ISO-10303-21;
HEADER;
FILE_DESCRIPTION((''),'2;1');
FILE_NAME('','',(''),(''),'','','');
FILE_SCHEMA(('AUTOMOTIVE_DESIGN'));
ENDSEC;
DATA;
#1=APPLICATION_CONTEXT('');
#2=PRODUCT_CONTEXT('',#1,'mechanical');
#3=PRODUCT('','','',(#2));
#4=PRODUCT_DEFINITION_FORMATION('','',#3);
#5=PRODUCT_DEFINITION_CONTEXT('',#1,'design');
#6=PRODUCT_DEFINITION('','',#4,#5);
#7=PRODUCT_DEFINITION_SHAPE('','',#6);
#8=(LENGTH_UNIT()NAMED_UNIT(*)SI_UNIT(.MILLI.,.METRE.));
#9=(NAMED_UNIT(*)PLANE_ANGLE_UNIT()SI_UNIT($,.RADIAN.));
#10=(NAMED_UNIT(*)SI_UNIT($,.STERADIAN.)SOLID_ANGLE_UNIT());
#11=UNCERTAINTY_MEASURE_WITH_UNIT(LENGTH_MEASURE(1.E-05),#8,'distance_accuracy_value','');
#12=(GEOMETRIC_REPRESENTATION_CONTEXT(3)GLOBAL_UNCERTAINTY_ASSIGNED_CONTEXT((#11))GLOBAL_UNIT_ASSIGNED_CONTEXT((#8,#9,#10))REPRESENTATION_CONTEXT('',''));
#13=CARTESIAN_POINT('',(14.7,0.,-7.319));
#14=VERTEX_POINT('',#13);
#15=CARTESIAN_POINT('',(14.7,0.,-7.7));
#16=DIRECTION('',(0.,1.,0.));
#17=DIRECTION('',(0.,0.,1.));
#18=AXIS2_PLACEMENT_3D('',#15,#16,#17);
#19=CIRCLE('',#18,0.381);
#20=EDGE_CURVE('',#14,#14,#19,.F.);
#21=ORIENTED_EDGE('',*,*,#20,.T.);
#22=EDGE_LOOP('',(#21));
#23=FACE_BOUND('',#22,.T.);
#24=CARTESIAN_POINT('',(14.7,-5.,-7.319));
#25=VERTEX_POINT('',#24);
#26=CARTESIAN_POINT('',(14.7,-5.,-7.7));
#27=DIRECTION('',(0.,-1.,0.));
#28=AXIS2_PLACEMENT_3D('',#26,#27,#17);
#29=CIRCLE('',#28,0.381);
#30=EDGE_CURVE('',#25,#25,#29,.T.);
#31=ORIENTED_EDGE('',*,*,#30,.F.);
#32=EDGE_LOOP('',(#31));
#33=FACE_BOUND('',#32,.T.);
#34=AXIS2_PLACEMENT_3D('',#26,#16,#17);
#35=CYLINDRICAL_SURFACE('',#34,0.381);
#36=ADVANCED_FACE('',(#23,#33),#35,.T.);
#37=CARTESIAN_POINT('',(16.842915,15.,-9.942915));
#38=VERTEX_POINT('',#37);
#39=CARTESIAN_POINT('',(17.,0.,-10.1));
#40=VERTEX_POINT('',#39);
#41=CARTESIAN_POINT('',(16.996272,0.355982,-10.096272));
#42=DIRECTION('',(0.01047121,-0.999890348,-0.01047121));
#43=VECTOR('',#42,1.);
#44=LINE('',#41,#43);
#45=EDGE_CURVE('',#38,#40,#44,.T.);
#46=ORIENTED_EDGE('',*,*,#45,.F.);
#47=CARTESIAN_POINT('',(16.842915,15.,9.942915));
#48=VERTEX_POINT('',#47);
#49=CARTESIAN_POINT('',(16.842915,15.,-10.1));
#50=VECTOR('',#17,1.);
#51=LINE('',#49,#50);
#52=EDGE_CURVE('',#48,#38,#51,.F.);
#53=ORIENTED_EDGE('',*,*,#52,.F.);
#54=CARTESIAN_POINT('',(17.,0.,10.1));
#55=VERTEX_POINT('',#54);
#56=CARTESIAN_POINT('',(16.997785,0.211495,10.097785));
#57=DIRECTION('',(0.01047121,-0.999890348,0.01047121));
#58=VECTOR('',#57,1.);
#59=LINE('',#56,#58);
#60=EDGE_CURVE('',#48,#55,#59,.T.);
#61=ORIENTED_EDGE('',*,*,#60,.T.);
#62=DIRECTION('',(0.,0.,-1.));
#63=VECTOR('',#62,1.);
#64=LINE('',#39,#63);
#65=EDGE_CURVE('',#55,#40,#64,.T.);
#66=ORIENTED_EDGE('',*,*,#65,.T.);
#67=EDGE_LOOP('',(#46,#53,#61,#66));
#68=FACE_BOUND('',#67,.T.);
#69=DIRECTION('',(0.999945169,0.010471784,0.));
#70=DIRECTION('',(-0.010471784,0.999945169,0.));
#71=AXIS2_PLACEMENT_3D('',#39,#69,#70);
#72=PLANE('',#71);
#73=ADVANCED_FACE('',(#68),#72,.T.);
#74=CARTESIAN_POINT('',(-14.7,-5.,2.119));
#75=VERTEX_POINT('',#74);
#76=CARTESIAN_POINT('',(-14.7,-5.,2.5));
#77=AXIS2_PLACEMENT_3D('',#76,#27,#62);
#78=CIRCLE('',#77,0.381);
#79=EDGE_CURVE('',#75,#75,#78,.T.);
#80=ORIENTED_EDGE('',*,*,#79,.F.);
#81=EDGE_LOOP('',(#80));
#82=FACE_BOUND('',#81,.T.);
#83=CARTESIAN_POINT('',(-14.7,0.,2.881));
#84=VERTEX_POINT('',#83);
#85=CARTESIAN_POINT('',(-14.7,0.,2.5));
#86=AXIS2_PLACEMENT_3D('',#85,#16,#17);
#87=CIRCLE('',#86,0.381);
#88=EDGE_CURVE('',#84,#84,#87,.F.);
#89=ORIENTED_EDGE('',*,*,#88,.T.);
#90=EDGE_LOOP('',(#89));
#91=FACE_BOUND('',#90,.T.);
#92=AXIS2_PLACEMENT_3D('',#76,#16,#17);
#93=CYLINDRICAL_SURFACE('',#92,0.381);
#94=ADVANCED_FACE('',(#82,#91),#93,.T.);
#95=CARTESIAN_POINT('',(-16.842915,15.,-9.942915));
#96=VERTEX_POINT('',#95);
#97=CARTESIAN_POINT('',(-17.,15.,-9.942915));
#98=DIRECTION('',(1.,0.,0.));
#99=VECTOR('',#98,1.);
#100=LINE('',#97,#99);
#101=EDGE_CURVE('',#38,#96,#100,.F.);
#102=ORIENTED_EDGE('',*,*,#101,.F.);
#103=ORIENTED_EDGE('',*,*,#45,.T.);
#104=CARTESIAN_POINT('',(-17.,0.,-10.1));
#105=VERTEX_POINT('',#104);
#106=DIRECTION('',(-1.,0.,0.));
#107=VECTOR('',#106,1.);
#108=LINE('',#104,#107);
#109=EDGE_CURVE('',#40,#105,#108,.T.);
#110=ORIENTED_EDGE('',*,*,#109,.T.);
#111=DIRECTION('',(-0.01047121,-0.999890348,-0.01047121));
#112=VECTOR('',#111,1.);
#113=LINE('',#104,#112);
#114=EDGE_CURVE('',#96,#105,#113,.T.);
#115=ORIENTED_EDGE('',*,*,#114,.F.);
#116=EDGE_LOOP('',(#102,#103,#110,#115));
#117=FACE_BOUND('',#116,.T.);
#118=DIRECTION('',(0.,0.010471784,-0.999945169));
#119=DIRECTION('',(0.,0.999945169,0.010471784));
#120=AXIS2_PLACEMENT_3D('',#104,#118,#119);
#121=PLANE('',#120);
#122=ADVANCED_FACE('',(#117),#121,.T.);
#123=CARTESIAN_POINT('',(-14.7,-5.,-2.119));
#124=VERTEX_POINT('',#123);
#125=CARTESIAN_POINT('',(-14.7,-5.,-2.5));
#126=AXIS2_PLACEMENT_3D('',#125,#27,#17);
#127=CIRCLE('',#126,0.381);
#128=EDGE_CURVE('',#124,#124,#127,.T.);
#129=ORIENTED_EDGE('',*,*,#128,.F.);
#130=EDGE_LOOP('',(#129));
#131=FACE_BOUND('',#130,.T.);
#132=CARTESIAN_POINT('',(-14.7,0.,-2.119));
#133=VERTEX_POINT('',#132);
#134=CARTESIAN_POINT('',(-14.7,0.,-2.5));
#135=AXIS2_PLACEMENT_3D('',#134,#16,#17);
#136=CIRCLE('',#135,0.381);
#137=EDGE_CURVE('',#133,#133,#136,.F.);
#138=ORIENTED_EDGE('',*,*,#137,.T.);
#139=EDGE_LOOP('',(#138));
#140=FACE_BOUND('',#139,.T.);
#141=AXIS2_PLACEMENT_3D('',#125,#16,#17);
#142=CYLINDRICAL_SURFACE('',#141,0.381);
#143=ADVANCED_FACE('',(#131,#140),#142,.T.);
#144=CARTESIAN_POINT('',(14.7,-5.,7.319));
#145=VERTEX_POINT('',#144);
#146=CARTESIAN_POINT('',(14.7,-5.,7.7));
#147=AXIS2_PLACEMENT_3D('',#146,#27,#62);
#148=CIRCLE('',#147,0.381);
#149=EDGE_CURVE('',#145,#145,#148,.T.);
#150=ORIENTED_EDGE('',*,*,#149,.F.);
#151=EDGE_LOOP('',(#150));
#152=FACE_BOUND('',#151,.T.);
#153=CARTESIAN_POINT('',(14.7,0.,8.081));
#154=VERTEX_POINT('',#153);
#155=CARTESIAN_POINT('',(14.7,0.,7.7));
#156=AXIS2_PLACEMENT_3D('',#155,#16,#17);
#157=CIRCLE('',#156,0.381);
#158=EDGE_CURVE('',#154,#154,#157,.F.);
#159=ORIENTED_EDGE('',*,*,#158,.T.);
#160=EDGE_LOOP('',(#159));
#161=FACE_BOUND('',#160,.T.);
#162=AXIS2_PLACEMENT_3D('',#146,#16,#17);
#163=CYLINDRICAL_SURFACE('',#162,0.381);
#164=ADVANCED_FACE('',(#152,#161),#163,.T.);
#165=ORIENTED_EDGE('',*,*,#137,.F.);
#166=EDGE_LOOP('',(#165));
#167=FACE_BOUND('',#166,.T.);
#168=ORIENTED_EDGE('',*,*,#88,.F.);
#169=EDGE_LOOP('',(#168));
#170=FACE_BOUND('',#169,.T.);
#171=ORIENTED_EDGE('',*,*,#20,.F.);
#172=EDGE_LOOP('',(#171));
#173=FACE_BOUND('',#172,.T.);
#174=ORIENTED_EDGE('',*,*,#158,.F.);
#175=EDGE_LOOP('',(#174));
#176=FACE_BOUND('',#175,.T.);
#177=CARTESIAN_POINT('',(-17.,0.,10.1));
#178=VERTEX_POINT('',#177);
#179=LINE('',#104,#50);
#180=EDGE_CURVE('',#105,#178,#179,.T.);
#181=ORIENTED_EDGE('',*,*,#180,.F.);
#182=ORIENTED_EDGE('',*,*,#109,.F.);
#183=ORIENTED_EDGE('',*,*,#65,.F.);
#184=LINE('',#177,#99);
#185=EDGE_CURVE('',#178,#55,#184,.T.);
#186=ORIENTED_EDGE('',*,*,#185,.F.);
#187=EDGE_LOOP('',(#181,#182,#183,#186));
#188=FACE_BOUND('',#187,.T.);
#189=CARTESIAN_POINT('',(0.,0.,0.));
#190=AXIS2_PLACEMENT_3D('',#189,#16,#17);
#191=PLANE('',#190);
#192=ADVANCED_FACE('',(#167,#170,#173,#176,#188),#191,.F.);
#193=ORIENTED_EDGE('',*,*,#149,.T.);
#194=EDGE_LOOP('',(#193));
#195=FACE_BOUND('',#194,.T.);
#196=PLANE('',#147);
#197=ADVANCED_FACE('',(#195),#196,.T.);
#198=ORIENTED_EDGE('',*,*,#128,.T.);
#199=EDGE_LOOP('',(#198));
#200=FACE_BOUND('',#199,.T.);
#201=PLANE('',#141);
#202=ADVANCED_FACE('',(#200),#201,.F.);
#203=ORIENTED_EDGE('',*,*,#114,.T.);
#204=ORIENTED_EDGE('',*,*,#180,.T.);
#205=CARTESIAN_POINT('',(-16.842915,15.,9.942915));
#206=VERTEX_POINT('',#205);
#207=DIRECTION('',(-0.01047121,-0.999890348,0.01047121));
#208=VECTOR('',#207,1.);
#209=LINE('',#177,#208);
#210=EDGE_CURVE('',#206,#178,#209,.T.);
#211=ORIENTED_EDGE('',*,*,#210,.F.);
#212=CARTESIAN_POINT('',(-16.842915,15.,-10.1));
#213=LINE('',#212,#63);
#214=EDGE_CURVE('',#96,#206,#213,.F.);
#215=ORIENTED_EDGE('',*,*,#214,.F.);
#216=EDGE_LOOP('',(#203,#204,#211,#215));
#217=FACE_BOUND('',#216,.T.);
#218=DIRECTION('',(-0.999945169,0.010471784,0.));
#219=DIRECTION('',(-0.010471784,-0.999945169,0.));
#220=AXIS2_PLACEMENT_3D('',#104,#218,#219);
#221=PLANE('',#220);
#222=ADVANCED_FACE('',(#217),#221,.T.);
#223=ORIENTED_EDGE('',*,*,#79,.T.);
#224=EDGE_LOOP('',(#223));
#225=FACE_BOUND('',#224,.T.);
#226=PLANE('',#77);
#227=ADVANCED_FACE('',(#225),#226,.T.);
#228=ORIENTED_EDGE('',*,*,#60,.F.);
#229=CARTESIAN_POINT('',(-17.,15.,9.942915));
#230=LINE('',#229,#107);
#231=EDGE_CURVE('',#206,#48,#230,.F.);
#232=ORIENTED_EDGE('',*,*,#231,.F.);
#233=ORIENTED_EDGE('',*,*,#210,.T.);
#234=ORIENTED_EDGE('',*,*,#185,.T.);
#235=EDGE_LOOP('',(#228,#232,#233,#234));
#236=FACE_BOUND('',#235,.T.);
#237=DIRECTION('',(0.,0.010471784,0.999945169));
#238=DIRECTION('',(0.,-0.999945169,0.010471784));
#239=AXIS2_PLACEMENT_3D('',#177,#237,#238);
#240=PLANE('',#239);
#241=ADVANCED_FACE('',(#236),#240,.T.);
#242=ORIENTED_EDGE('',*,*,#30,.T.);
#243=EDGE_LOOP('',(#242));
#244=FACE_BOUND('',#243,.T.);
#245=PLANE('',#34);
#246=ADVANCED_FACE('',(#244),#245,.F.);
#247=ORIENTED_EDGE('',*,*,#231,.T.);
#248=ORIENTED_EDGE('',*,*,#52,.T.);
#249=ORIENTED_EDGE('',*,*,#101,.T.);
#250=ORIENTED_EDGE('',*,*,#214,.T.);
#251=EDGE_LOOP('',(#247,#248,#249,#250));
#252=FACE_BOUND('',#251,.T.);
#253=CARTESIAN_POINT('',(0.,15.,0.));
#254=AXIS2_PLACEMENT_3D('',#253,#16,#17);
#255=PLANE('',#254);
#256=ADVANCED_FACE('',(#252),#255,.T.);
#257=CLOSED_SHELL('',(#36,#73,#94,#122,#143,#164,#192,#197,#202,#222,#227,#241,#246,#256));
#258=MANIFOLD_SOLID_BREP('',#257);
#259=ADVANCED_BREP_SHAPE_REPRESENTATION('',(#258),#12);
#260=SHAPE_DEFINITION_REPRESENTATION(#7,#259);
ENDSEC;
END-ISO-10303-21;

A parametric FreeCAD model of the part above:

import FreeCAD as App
import Part
import Sketcher

V = App.Vector


def add_polygon(sketch, points):
    """Adds a closed chain of lines whose ends are joined by coincident constraints."""
    first, n = sketch.GeometryCount, len(points)
    for a, b in zip(points, points[1:] + points[:1]):
        sketch.addGeometry(Part.LineSegment(App.Vector(*a, 0), App.Vector(*b, 0)), False)
    for i in range(n):
        sketch.addConstraint(Sketcher.Constraint("Coincident", first + i, 2, first + (i + 1) % n, 1))

doc = App.newDocument("Part")
body = doc.addObject("PartDesign::Body", "Body")

# Sketch on XZ plane
sketch1 = doc.addObject("Sketcher::SketchObject", "Sketch")
body.addObject(sketch1)
sketch1.AttachmentSupport = (doc.XZ_Plane, [""])
sketch1.MapMode = "FlatFace"
add_polygon(sketch1, [(-17, -10), (-17, 10), (17, 10), (17, -10)])  # lines 0-3
sketch1.addConstraint([
    Sketcher.Constraint("Vertical", 0),
    Sketcher.Constraint("Horizontal", 1),
    Sketcher.Constraint("Vertical", 2),
    Sketcher.Constraint("Horizontal", 3),
    Sketcher.Constraint("Symmetric", 0, 2, 2, 2, -1, 1),
    Sketcher.Constraint("DistanceX", 1, 1, 1, 2, 34.0),
    Sketcher.Constraint("DistanceY", 0, 1, 0, 2, 20.2),
])
pad1 = doc.addObject("PartDesign::Pad", "Pad")
body.addObject(pad1)
pad1.Profile = sketch1
pad1.Length = 15
pad1.Reversed = True
pad1.TaperAngle = -0.6

# Sketch on XZ plane
sketch2 = doc.addObject("Sketcher::SketchObject", "Sketch001")
body.addObject(sketch2)
sketch2.AttachmentSupport = (doc.XZ_Plane, [""])
sketch2.MapMode = "FlatFace"
sketch2.addGeometry([
    Part.Circle(V(-14.7, 2.5, 0), V(0, 0, 1), 0.38),
    Part.Circle(V(14.7, 7.7, 0), V(0, 0, 1), 0.38),
    Part.Circle(V(14.7, -7.7, 0), V(0, 0, 1), 0.38),
    Part.Circle(V(-14.7, -2.5, 0), V(0, 0, 1), 0.38),
], False)
sketch2.addConstraint([
    Sketcher.Constraint("Equal", 0, 1),
    Sketcher.Constraint("Equal", 1, 2),
    Sketcher.Constraint("Equal", 2, 3),
    Sketcher.Constraint("Symmetric", 1, 3, 2, 3, -1),
    Sketcher.Constraint("Symmetric", 0, 3, 3, 3, -1),
    Sketcher.Constraint("Diameter", 0, 0.762),
    Sketcher.Constraint("DistanceY", 3, 3, 0, 3, 5.0),
    Sketcher.Constraint("DistanceX", 0, 3, -1, 1, 14.7),
    Sketcher.Constraint("DistanceX", -1, 1, 1, 3, 14.7),
    Sketcher.Constraint("DistanceY", -1, 1, 1, 3, 7.7),
])
pad2 = doc.addObject("PartDesign::Pad", "Pad001")
body.addObject(pad2)
pad2.Profile = sketch2
pad2.Length = 5

doc.recompute()
